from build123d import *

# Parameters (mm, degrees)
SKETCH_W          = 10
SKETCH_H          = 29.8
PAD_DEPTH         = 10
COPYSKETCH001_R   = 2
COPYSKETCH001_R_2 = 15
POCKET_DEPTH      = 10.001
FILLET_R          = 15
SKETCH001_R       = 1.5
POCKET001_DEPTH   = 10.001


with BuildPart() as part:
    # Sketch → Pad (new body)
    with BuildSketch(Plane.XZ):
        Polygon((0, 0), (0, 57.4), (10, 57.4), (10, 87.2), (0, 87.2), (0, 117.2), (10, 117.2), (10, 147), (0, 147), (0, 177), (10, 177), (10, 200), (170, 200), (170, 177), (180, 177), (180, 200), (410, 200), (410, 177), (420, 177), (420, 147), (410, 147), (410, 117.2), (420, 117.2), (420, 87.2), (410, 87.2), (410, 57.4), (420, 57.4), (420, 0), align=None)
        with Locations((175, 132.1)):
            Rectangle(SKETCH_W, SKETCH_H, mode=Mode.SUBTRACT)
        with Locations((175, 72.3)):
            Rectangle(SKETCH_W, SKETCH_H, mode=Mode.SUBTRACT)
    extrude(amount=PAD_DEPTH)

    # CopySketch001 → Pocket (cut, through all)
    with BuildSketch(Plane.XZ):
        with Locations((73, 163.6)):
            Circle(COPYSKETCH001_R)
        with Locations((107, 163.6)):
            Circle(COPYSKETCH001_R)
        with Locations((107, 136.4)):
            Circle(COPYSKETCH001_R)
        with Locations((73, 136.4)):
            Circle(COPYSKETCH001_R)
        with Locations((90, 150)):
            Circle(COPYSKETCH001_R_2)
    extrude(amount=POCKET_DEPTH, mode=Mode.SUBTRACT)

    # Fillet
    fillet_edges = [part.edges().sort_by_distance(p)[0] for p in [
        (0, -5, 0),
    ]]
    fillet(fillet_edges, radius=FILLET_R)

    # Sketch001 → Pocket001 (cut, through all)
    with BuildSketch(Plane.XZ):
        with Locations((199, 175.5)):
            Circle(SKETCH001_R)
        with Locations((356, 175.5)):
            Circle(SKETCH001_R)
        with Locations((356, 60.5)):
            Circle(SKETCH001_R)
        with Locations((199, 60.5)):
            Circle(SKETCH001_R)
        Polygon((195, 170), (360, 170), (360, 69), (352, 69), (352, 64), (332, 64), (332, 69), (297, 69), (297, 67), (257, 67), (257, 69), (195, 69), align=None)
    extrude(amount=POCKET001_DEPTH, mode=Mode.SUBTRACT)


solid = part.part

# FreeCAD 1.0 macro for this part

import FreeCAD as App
import Part
import Sketcher
from FreeCAD import Vector


def edges_at(feature, points):
    """Names of the edges that pass closest to the given points."""
    edges = feature.Shape.Edges
    near = lambda p: min(range(len(edges)), key=lambda i: edges[i].distToShape(Part.Vertex(*p))[0])
    return sorted({f"Edge{near(p) + 1}" for p in points})

doc = App.newDocument("Part")
params = doc.addObject("Spreadsheet::Sheet", "Params")
for row, (alias, value) in enumerate([
    ("sketch1_width", "420 mm"),
    ("sketch1_width2", "10 mm"),
    ("sketch1_width3", "230 mm"),
    ("sketch1_height", "30 mm"),
    ("sketch1_height2", "23 mm"),
    ("pad1_length", "10 mm"),
    ("sketch2_diameter", "4 mm"),
    ("sketch2_diameter2", "30 mm"),
    ("fillet_radius", "15 mm"),
    ("sketch3_diameter", "3 mm"),
    ("sketch3_width", "165 mm"),
    ("sketch3_width2", "62 mm"),
    ("sketch3_width3", "40 mm"),
    ("sketch3_width4", "35 mm"),
], start=1):
    params.set(f"A{row}", alias)
    params.set(f"B{row}", "=" + value)
    params.setAlias(f"B{row}", alias)

body = doc.addObject("PartDesign::Body", "Body")

sketch1 = doc.addObject("Sketcher::SketchObject", "Sketch")
body.addObject(sketch1)
sketch1.AttachmentSupport = (doc.XZ_Plane, [""])
sketch1.MapMode = "FlatFace"
sketch1.addGeometry(Part.LineSegment(Vector(0, 57, 0), Vector(0, 0, 0)), False)
sketch1.addGeometry(Part.LineSegment(Vector(0, 0, 0), Vector(420, 0, 0)), False)
sketch1.addGeometry(Part.LineSegment(Vector(420, 0, 0), Vector(420, 57, 0)), False)
sketch1.addGeometry(Part.LineSegment(Vector(420, 57, 0), Vector(410, 57, 0)), False)
sketch1.addGeometry(Part.LineSegment(Vector(410, 57, 0), Vector(410, 87, 0)), False)
sketch1.addGeometry(Part.LineSegment(Vector(410, 87, 0), Vector(420, 87, 0)), False)
sketch1.addGeometry(Part.LineSegment(Vector(420, 87, 0), Vector(420, 117, 0)), False)
sketch1.addGeometry(Part.LineSegment(Vector(420, 117, 0), Vector(410, 117, 0)), False)
sketch1.addGeometry(Part.LineSegment(Vector(410, 117, 0), Vector(410, 147, 0)), False)
sketch1.addGeometry(Part.LineSegment(Vector(410, 147, 0), Vector(420, 147, 0)), False)
sketch1.addGeometry(Part.LineSegment(Vector(420, 147, 0), Vector(420, 177, 0)), False)
sketch1.addGeometry(Part.LineSegment(Vector(420, 177, 0), Vector(410, 177, 0)), False)
sketch1.addGeometry(Part.LineSegment(Vector(410, 177, 0), Vector(410, 200, 0)), False)
sketch1.addGeometry(Part.LineSegment(Vector(410, 200, 0), Vector(180, 200, 0)), False)
sketch1.addGeometry(Part.LineSegment(Vector(180, 200, 0), Vector(180, 177, 0)), False)
sketch1.addGeometry(Part.LineSegment(Vector(180, 177, 0), Vector(170, 177, 0)), False)
sketch1.addGeometry(Part.LineSegment(Vector(170, 177, 0), Vector(170, 200, 0)), False)
sketch1.addGeometry(Part.LineSegment(Vector(170, 200, 0), Vector(10, 200, 0)), False)
sketch1.addGeometry(Part.LineSegment(Vector(10, 200, 0), Vector(10, 177, 0)), False)
sketch1.addGeometry(Part.LineSegment(Vector(10, 177, 0), Vector(0, 177, 0)), False)
sketch1.addGeometry(Part.LineSegment(Vector(0, 177, 0), Vector(0, 147, 0)), False)
sketch1.addGeometry(Part.LineSegment(Vector(0, 147, 0), Vector(10, 147, 0)), False)
sketch1.addGeometry(Part.LineSegment(Vector(10, 147, 0), Vector(10, 117, 0)), False)
sketch1.addGeometry(Part.LineSegment(Vector(10, 117, 0), Vector(0, 117, 0)), False)
sketch1.addGeometry(Part.LineSegment(Vector(0, 117, 0), Vector(0, 87, 0)), False)
sketch1.addGeometry(Part.LineSegment(Vector(0, 87, 0), Vector(10, 87, 0)), False)
sketch1.addGeometry(Part.LineSegment(Vector(10, 87, 0), Vector(10, 57, 0)), False)
sketch1.addGeometry(Part.LineSegment(Vector(10, 57, 0), Vector(0, 57, 0)), False)
sketch1.addGeometry(Part.LineSegment(Vector(170, 57, 0), Vector(170, 87, 0)), False)
sketch1.addGeometry(Part.LineSegment(Vector(170, 87, 0), Vector(180, 87, 0)), False)
sketch1.addGeometry(Part.LineSegment(Vector(180, 87, 0), Vector(180, 57, 0)), False)
sketch1.addGeometry(Part.LineSegment(Vector(180, 57, 0), Vector(170, 57, 0)), False)
sketch1.addGeometry(Part.LineSegment(Vector(170, 117, 0), Vector(170, 147, 0)), False)
sketch1.addGeometry(Part.LineSegment(Vector(170, 147, 0), Vector(180, 147, 0)), False)
sketch1.addGeometry(Part.LineSegment(Vector(180, 147, 0), Vector(180, 117, 0)), False)
sketch1.addGeometry(Part.LineSegment(Vector(180, 117, 0), Vector(170, 117, 0)), False)
sketch1.addConstraint(Sketcher.Constraint("Coincident", 0, 2, 1, 1))
sketch1.addConstraint(Sketcher.Constraint("Coincident", 1, 2, 2, 1))
sketch1.addConstraint(Sketcher.Constraint("Coincident", 2, 2, 3, 1))
sketch1.addConstraint(Sketcher.Constraint("Coincident", 3, 2, 4, 1))
sketch1.addConstraint(Sketcher.Constraint("Coincident", 4, 2, 5, 1))
sketch1.addConstraint(Sketcher.Constraint("Coincident", 5, 2, 6, 1))
sketch1.addConstraint(Sketcher.Constraint("Coincident", 6, 2, 7, 1))
sketch1.addConstraint(Sketcher.Constraint("Coincident", 7, 2, 8, 1))
sketch1.addConstraint(Sketcher.Constraint("Coincident", 8, 2, 9, 1))
sketch1.addConstraint(Sketcher.Constraint("Coincident", 9, 2, 10, 1))
sketch1.addConstraint(Sketcher.Constraint("Coincident", 10, 2, 11, 1))
sketch1.addConstraint(Sketcher.Constraint("Coincident", 11, 2, 12, 1))
sketch1.addConstraint(Sketcher.Constraint("Coincident", 12, 2, 13, 1))
sketch1.addConstraint(Sketcher.Constraint("Coincident", 13, 2, 14, 1))
sketch1.addConstraint(Sketcher.Constraint("Coincident", 14, 2, 15, 1))
sketch1.addConstraint(Sketcher.Constraint("Coincident", 15, 2, 16, 1))
sketch1.addConstraint(Sketcher.Constraint("Coincident", 16, 2, 17, 1))
sketch1.addConstraint(Sketcher.Constraint("Coincident", 17, 2, 18, 1))
sketch1.addConstraint(Sketcher.Constraint("Coincident", 18, 2, 19, 1))
sketch1.addConstraint(Sketcher.Constraint("Coincident", 19, 2, 20, 1))
sketch1.addConstraint(Sketcher.Constraint("Coincident", 20, 2, 21, 1))
sketch1.addConstraint(Sketcher.Constraint("Coincident", 21, 2, 22, 1))
sketch1.addConstraint(Sketcher.Constraint("Coincident", 22, 2, 23, 1))
sketch1.addConstraint(Sketcher.Constraint("Coincident", 23, 2, 24, 1))
sketch1.addConstraint(Sketcher.Constraint("Coincident", 24, 2, 25, 1))
sketch1.addConstraint(Sketcher.Constraint("Coincident", 25, 2, 26, 1))
sketch1.addConstraint(Sketcher.Constraint("Coincident", 26, 2, 27, 1))
sketch1.addConstraint(Sketcher.Constraint("Coincident", 27, 2, 0, 1))
sketch1.addConstraint(Sketcher.Constraint("Coincident", 28, 2, 29, 1))
sketch1.addConstraint(Sketcher.Constraint("Coincident", 29, 2, 30, 1))
sketch1.addConstraint(Sketcher.Constraint("Coincident", 30, 2, 31, 1))
sketch1.addConstraint(Sketcher.Constraint("Coincident", 31, 2, 28, 1))
sketch1.addConstraint(Sketcher.Constraint("Coincident", 32, 2, 33, 1))
sketch1.addConstraint(Sketcher.Constraint("Coincident", 33, 2, 34, 1))
sketch1.addConstraint(Sketcher.Constraint("Coincident", 34, 2, 35, 1))
sketch1.addConstraint(Sketcher.Constraint("Coincident", 35, 2, 32, 1))
sketch1.addConstraint(Sketcher.Constraint("Vertical", 0))
sketch1.addConstraint(Sketcher.Constraint("Horizontal", 1))
sketch1.addConstraint(Sketcher.Constraint("Vertical", 2))
sketch1.addConstraint(Sketcher.Constraint("Horizontal", 3))
sketch1.addConstraint(Sketcher.Constraint("Vertical", 4))
sketch1.addConstraint(Sketcher.Constraint("Horizontal", 5))
sketch1.addConstraint(Sketcher.Constraint("Vertical", 6))
sketch1.addConstraint(Sketcher.Constraint("Horizontal", 7))
sketch1.addConstraint(Sketcher.Constraint("Vertical", 8))
sketch1.addConstraint(Sketcher.Constraint("Horizontal", 9))
sketch1.addConstraint(Sketcher.Constraint("Vertical", 10))
sketch1.addConstraint(Sketcher.Constraint("Horizontal", 11))
sketch1.addConstraint(Sketcher.Constraint("Vertical", 12))
sketch1.addConstraint(Sketcher.Constraint("Horizontal", 13))
sketch1.addConstraint(Sketcher.Constraint("Vertical", 14))
sketch1.addConstraint(Sketcher.Constraint("Horizontal", 15))
sketch1.addConstraint(Sketcher.Constraint("Vertical", 16))
sketch1.addConstraint(Sketcher.Constraint("Horizontal", 17))
sketch1.addConstraint(Sketcher.Constraint("Vertical", 18))
sketch1.addConstraint(Sketcher.Constraint("Horizontal", 19))
sketch1.addConstraint(Sketcher.Constraint("Vertical", 20))
sketch1.addConstraint(Sketcher.Constraint("Horizontal", 21))
sketch1.addConstraint(Sketcher.Constraint("Vertical", 22))
sketch1.addConstraint(Sketcher.Constraint("Horizontal", 23))
sketch1.addConstraint(Sketcher.Constraint("Vertical", 24))
sketch1.addConstraint(Sketcher.Constraint("Horizontal", 25))
sketch1.addConstraint(Sketcher.Constraint("Vertical", 26))
sketch1.addConstraint(Sketcher.Constraint("Horizontal", 27))
sketch1.addConstraint(Sketcher.Constraint("Vertical", 28))
sketch1.addConstraint(Sketcher.Constraint("Horizontal", 29))
sketch1.addConstraint(Sketcher.Constraint("Vertical", 30))
sketch1.addConstraint(Sketcher.Constraint("Horizontal", 31))
sketch1.addConstraint(Sketcher.Constraint("Vertical", 32))
sketch1.addConstraint(Sketcher.Constraint("Horizontal", 33))
sketch1.addConstraint(Sketcher.Constraint("Vertical", 34))
sketch1.addConstraint(Sketcher.Constraint("Horizontal", 35))
sketch1.addConstraint(Sketcher.Constraint("Coincident", 0, 2, -1, 1))
sketch1.addConstraint(Sketcher.Constraint("PointOnObject", 19, 2, -2))
sketch1.addConstraint(Sketcher.Constraint("PointOnObject", 23, 2, -2))
sketch1.addConstraint(Sketcher.Constraint("Horizontal", 11, 2, 14, 2))
sketch1.addConstraint(Sketcher.Constraint("Horizontal", 13, 2, 16, 2))
sketch1.addConstraint(Sketcher.Constraint("Horizontal", 15, 2, 18, 2))
sketch1.addConstraint(Sketcher.Constraint("Horizontal", 9, 2, 20, 2))
sketch1.addConstraint(Sketcher.Constraint("Horizontal", 7, 2, 22, 2))
sketch1.addConstraint(Sketcher.Constraint("Horizontal", 5, 2, 24, 2))
sketch1.addConstraint(Sketcher.Constraint("Horizontal", 3, 2, 26, 2))
sketch1.addConstraint(Sketcher.Constraint("Horizontal", 25, 2, 28, 2))
sketch1.addConstraint(Sketcher.Constraint("Horizontal", 27, 2, 30, 2))
sketch1.addConstraint(Sketcher.Constraint("Horizontal", 21, 2, 32, 2))
sketch1.addConstraint(Sketcher.Constraint("Horizontal", 23, 2, 34, 2))
sketch1.addConstraint(Sketcher.Constraint("Vertical", 2, 2, 5, 2))
sketch1.addConstraint(Sketcher.Constraint("Vertical", 4, 2, 7, 2))
sketch1.addConstraint(Sketcher.Constraint("Vertical", 6, 2, 9, 2))
sketch1.addConstraint(Sketcher.Constraint("Vertical", 8, 2, 11, 2))
sketch1.addConstraint(Sketcher.Constraint("Vertical", 18, 2, 21, 2))
sketch1.addConstraint(Sketcher.Constraint("Vertical", 22, 2, 25, 2))
sketch1.addConstraint(Sketcher.Constraint("Vertical", 16, 2, 28, 2))
sketch1.addConstraint(Sketcher.Constraint("Vertical", 14, 2, 29, 2))
sketch1.addConstraint(Sketcher.Constraint("Vertical", 31, 2, 32, 2))
sketch1.addConstraint(Sketcher.Constraint("Vertical", 30, 2, 33, 2))
sketch1.addConstraint(Sketcher.Constraint("Equal", 11, 15))
sketch1.addConstraint(Sketcher.Constraint("Equal", 15, 19))
sketch1.addConstraint(Sketcher.Constraint("Equal", 4, 8))
sketch1.addConstraint(Sketcher.Constraint("Equal", 6, 10))
sketch1.addConstraint(Sketcher.Constraint("DistanceX", 1, 1, 1, 2, 420.0))
sketch1.addConstraint(Sketcher.Constraint("DistanceX", 3, 2, 3, 1, 10.0))
sketch1.addConstraint(Sketcher.Constraint("DistanceX", 13, 2, 13, 1, 230.0))
sketch1.addConstraint(Sketcher.Constraint("DistanceY", 6, 1, 6, 2, 30.0))
sketch1.addConstraint(Sketcher.Constraint("DistanceY", 12, 1, 12, 2, 23.0))
sketch1.addConstraint(Sketcher.Constraint("DistanceY", 0, 2, 0, 1, 57.4))
sketch1.addConstraint(Sketcher.Constraint("DistanceY", 4, 1, 4, 2, 29.8))
sketch1.setExpression("Constraints[100]", "Params.sketch1_width")
sketch1.setExpression("Constraints[101]", "Params.sketch1_width2")
sketch1.setExpression("Constraints[102]", "Params.sketch1_width3")
sketch1.setExpression("Constraints[103]", "Params.sketch1_height")
sketch1.setExpression("Constraints[104]", "Params.sketch1_height2")
pad1 = doc.addObject("PartDesign::Pad", "Pad")
body.addObject(pad1)
pad1.Profile = sketch1
pad1.setExpression("Length", "Params.pad1_length")

sketch2 = doc.addObject("Sketcher::SketchObject", "Sketch001")
body.addObject(sketch2)
sketch2.AttachmentSupport = (doc.XZ_Plane, [""])
sketch2.MapMode = "FlatFace"
sketch2.addGeometry(Part.Circle(Vector(73, 163.6, 0), Vector(0, 0, 1), 2), False)
sketch2.addGeometry(Part.Circle(Vector(107, 163.6, 0), Vector(0, 0, 1), 2), False)
sketch2.addGeometry(Part.Circle(Vector(107, 136.4, 0), Vector(0, 0, 1), 2), False)
sketch2.addGeometry(Part.Circle(Vector(73, 136.4, 0), Vector(0, 0, 1), 2), False)
sketch2.addGeometry(Part.Circle(Vector(90, 150, 0), Vector(0, 0, 1), 15), False)
sketch2.addConstraint(Sketcher.Constraint("Equal", 0, 1))
sketch2.addConstraint(Sketcher.Constraint("Equal", 1, 2))
sketch2.addConstraint(Sketcher.Constraint("Equal", 2, 3))
sketch2.addConstraint(Sketcher.Constraint("Horizontal", 0, 3, 1, 3))
sketch2.addConstraint(Sketcher.Constraint("Horizontal", 2, 3, 3, 3))
sketch2.addConstraint(Sketcher.Constraint("Vertical", 1, 3, 2, 3))
sketch2.addConstraint(Sketcher.Constraint("Vertical", 0, 3, 3, 3))
sketch2.addConstraint(Sketcher.Constraint("Diameter", 0, 4.0))
sketch2.addConstraint(Sketcher.Constraint("Diameter", 4, 30.0))
sketch2.addConstraint(Sketcher.Constraint("DistanceX", -1, 1, 0, 3, 73.0))
sketch2.addConstraint(Sketcher.Constraint("DistanceX", -1, 1, 1, 3, 107.0))
sketch2.addConstraint(Sketcher.Constraint("DistanceX", -1, 1, 4, 3, 90.0))
sketch2.addConstraint(Sketcher.Constraint("DistanceY", -1, 1, 4, 3, 150.0))
sketch2.addConstraint(Sketcher.Constraint("DistanceY", -1, 1, 0, 3, 163.6))
sketch2.addConstraint(Sketcher.Constraint("DistanceY", -1, 1, 2, 3, 136.4))
sketch2.setExpression("Constraints[7]", "Params.sketch2_diameter")
sketch2.setExpression("Constraints[8]", "Params.sketch2_diameter2")
pocket1 = doc.addObject("PartDesign::Pocket", "Pocket")
body.addObject(pocket1)
pocket1.Profile = sketch2
pocket1.Type = "ThroughAll"
pocket1.Reversed = True
doc.recompute()

fillet = doc.addObject("PartDesign::Fillet", "Fillet")
body.addObject(fillet)
fillet.Base = (pocket1, edges_at(pocket1, [(0, -5, 0)]))
fillet.setExpression("Radius", "Params.fillet_radius")

sketch3 = doc.addObject("Sketcher::SketchObject", "Sketch002")
body.addObject(sketch3)
sketch3.AttachmentSupport = (doc.XZ_Plane, [""])
sketch3.MapMode = "FlatFace"
sketch3.addGeometry(Part.Circle(Vector(199, 175.5, 0), Vector(0, 0, 1), 1.5), False)
sketch3.addGeometry(Part.Circle(Vector(356, 175.5, 0), Vector(0, 0, 1), 1.5), False)
sketch3.addGeometry(Part.Circle(Vector(356, 60.5, 0), Vector(0, 0, 1), 1.5), False)
sketch3.addGeometry(Part.Circle(Vector(199, 60.5, 0), Vector(0, 0, 1), 1.5), False)
sketch3.addGeometry(Part.LineSegment(Vector(360, 170, 0), Vector(195, 170, 0)), False)
sketch3.addGeometry(Part.LineSegment(Vector(195, 170, 0), Vector(195, 69, 0)), False)
sketch3.addGeometry(Part.LineSegment(Vector(195, 69, 0), Vector(257, 69, 0)), False)
sketch3.addGeometry(Part.LineSegment(Vector(257, 69, 0), Vector(257, 67, 0)), False)
sketch3.addGeometry(Part.LineSegment(Vector(257, 67, 0), Vector(297, 67, 0)), False)
sketch3.addGeometry(Part.LineSegment(Vector(297, 67, 0), Vector(297, 69, 0)), False)
sketch3.addGeometry(Part.LineSegment(Vector(297, 69, 0), Vector(332, 69, 0)), False)
sketch3.addGeometry(Part.LineSegment(Vector(332, 69, 0), Vector(332, 64, 0)), False)
sketch3.addGeometry(Part.LineSegment(Vector(332, 64, 0), Vector(352, 64, 0)), False)
sketch3.addGeometry(Part.LineSegment(Vector(352, 64, 0), Vector(352, 69, 0)), False)
sketch3.addGeometry(Part.LineSegment(Vector(352, 69, 0), Vector(360, 69, 0)), False)
sketch3.addGeometry(Part.LineSegment(Vector(360, 69, 0), Vector(360, 170, 0)), False)
sketch3.addConstraint(Sketcher.Constraint("Coincident", 4, 2, 5, 1))
sketch3.addConstraint(Sketcher.Constraint("Coincident", 5, 2, 6, 1))
sketch3.addConstraint(Sketcher.Constraint("Coincident", 6, 2, 7, 1))
sketch3.addConstraint(Sketcher.Constraint("Coincident", 7, 2, 8, 1))
sketch3.addConstraint(Sketcher.Constraint("Coincident", 8, 2, 9, 1))
sketch3.addConstraint(Sketcher.Constraint("Coincident", 9, 2, 10, 1))
sketch3.addConstraint(Sketcher.Constraint("Coincident", 10, 2, 11, 1))
sketch3.addConstraint(Sketcher.Constraint("Coincident", 11, 2, 12, 1))
sketch3.addConstraint(Sketcher.Constraint("Coincident", 12, 2, 13, 1))
sketch3.addConstraint(Sketcher.Constraint("Coincident", 13, 2, 14, 1))
sketch3.addConstraint(Sketcher.Constraint("Coincident", 14, 2, 15, 1))
sketch3.addConstraint(Sketcher.Constraint("Coincident", 15, 2, 4, 1))
sketch3.addConstraint(Sketcher.Constraint("Horizontal", 4))
sketch3.addConstraint(Sketcher.Constraint("Vertical", 5))
sketch3.addConstraint(Sketcher.Constraint("Horizontal", 6))
sketch3.addConstraint(Sketcher.Constraint("Vertical", 7))
sketch3.addConstraint(Sketcher.Constraint("Horizontal", 8))
sketch3.addConstraint(Sketcher.Constraint("Vertical", 9))
sketch3.addConstraint(Sketcher.Constraint("Horizontal", 10))
sketch3.addConstraint(Sketcher.Constraint("Vertical", 11))
sketch3.addConstraint(Sketcher.Constraint("Horizontal", 12))
sketch3.addConstraint(Sketcher.Constraint("Vertical", 13))
sketch3.addConstraint(Sketcher.Constraint("Horizontal", 14))
sketch3.addConstraint(Sketcher.Constraint("Vertical", 15))
sketch3.addConstraint(Sketcher.Constraint("Equal", 0, 1))
sketch3.addConstraint(Sketcher.Constraint("Equal", 1, 2))
sketch3.addConstraint(Sketcher.Constraint("Equal", 2, 3))
sketch3.addConstraint(Sketcher.Constraint("Horizontal", 0, 3, 1, 3))
sketch3.addConstraint(Sketcher.Constraint("Horizontal", 2, 3, 3, 3))
sketch3.addConstraint(Sketcher.Constraint("Horizontal", 6, 2, 9, 2))
sketch3.addConstraint(Sketcher.Constraint("Horizontal", 10, 2, 13, 2))
sketch3.addConstraint(Sketcher.Constraint("Vertical", 1, 3, 2, 3))
sketch3.addConstraint(Sketcher.Constraint("Vertical", 0, 3, 3, 3))
sketch3.addConstraint(Sketcher.Constraint("Diameter", 0, 3.0))
sketch3.addConstraint(Sketcher.Constraint("DistanceX", 4, 2, 4, 1, 165.0))
sketch3.addConstraint(Sketcher.Constraint("DistanceX", 6, 1, 6, 2, 62.0))
sketch3.addConstraint(Sketcher.Constraint("DistanceX", 8, 1, 8, 2, 40.0))
sketch3.addConstraint(Sketcher.Constraint("DistanceX", 10, 1, 10, 2, 35.0))
sketch3.addConstraint(Sketcher.Constraint("DistanceX", 12, 1, 12, 2, 20.0))
sketch3.addConstraint(Sketcher.Constraint("DistanceY", 5, 2, 5, 1, 101.0))
sketch3.addConstraint(Sketcher.Constraint("DistanceY", 7, 2, 7, 1, 2.0))
sketch3.addConstraint(Sketcher.Constraint("DistanceY", 11, 2, 11, 1, 5.0))
sketch3.addConstraint(Sketcher.Constraint("DistanceX", -1, 1, 0, 3, 199.0))
sketch3.addConstraint(Sketcher.Constraint("DistanceX", -1, 1, 1, 3, 356.0))
sketch3.addConstraint(Sketcher.Constraint("DistanceX", -1, 1, 4, 2, 195.0))
sketch3.addConstraint(Sketcher.Constraint("DistanceY", -1, 1, 4, 2, 170.0))
sketch3.addConstraint(Sketcher.Constraint("DistanceY", 2, 3, 1, 3, 115.0))
sketch3.addConstraint(Sketcher.Constraint("DistanceY", -1, 1, 0, 3, 175.5))
sketch3.setExpression("Constraints[33]", "Params.sketch3_diameter")
sketch3.setExpression("Constraints[34]", "Params.sketch3_width")
sketch3.setExpression("Constraints[35]", "Params.sketch3_width2")
sketch3.setExpression("Constraints[36]", "Params.sketch3_width3")
sketch3.setExpression("Constraints[37]", "Params.sketch3_width4")
pocket2 = doc.addObject("PartDesign::Pocket", "Pocket001")
body.addObject(pocket2)
pocket2.Profile = sketch3
pocket2.Type = "ThroughAll"
pocket2.Reversed = True

doc.recompute()
